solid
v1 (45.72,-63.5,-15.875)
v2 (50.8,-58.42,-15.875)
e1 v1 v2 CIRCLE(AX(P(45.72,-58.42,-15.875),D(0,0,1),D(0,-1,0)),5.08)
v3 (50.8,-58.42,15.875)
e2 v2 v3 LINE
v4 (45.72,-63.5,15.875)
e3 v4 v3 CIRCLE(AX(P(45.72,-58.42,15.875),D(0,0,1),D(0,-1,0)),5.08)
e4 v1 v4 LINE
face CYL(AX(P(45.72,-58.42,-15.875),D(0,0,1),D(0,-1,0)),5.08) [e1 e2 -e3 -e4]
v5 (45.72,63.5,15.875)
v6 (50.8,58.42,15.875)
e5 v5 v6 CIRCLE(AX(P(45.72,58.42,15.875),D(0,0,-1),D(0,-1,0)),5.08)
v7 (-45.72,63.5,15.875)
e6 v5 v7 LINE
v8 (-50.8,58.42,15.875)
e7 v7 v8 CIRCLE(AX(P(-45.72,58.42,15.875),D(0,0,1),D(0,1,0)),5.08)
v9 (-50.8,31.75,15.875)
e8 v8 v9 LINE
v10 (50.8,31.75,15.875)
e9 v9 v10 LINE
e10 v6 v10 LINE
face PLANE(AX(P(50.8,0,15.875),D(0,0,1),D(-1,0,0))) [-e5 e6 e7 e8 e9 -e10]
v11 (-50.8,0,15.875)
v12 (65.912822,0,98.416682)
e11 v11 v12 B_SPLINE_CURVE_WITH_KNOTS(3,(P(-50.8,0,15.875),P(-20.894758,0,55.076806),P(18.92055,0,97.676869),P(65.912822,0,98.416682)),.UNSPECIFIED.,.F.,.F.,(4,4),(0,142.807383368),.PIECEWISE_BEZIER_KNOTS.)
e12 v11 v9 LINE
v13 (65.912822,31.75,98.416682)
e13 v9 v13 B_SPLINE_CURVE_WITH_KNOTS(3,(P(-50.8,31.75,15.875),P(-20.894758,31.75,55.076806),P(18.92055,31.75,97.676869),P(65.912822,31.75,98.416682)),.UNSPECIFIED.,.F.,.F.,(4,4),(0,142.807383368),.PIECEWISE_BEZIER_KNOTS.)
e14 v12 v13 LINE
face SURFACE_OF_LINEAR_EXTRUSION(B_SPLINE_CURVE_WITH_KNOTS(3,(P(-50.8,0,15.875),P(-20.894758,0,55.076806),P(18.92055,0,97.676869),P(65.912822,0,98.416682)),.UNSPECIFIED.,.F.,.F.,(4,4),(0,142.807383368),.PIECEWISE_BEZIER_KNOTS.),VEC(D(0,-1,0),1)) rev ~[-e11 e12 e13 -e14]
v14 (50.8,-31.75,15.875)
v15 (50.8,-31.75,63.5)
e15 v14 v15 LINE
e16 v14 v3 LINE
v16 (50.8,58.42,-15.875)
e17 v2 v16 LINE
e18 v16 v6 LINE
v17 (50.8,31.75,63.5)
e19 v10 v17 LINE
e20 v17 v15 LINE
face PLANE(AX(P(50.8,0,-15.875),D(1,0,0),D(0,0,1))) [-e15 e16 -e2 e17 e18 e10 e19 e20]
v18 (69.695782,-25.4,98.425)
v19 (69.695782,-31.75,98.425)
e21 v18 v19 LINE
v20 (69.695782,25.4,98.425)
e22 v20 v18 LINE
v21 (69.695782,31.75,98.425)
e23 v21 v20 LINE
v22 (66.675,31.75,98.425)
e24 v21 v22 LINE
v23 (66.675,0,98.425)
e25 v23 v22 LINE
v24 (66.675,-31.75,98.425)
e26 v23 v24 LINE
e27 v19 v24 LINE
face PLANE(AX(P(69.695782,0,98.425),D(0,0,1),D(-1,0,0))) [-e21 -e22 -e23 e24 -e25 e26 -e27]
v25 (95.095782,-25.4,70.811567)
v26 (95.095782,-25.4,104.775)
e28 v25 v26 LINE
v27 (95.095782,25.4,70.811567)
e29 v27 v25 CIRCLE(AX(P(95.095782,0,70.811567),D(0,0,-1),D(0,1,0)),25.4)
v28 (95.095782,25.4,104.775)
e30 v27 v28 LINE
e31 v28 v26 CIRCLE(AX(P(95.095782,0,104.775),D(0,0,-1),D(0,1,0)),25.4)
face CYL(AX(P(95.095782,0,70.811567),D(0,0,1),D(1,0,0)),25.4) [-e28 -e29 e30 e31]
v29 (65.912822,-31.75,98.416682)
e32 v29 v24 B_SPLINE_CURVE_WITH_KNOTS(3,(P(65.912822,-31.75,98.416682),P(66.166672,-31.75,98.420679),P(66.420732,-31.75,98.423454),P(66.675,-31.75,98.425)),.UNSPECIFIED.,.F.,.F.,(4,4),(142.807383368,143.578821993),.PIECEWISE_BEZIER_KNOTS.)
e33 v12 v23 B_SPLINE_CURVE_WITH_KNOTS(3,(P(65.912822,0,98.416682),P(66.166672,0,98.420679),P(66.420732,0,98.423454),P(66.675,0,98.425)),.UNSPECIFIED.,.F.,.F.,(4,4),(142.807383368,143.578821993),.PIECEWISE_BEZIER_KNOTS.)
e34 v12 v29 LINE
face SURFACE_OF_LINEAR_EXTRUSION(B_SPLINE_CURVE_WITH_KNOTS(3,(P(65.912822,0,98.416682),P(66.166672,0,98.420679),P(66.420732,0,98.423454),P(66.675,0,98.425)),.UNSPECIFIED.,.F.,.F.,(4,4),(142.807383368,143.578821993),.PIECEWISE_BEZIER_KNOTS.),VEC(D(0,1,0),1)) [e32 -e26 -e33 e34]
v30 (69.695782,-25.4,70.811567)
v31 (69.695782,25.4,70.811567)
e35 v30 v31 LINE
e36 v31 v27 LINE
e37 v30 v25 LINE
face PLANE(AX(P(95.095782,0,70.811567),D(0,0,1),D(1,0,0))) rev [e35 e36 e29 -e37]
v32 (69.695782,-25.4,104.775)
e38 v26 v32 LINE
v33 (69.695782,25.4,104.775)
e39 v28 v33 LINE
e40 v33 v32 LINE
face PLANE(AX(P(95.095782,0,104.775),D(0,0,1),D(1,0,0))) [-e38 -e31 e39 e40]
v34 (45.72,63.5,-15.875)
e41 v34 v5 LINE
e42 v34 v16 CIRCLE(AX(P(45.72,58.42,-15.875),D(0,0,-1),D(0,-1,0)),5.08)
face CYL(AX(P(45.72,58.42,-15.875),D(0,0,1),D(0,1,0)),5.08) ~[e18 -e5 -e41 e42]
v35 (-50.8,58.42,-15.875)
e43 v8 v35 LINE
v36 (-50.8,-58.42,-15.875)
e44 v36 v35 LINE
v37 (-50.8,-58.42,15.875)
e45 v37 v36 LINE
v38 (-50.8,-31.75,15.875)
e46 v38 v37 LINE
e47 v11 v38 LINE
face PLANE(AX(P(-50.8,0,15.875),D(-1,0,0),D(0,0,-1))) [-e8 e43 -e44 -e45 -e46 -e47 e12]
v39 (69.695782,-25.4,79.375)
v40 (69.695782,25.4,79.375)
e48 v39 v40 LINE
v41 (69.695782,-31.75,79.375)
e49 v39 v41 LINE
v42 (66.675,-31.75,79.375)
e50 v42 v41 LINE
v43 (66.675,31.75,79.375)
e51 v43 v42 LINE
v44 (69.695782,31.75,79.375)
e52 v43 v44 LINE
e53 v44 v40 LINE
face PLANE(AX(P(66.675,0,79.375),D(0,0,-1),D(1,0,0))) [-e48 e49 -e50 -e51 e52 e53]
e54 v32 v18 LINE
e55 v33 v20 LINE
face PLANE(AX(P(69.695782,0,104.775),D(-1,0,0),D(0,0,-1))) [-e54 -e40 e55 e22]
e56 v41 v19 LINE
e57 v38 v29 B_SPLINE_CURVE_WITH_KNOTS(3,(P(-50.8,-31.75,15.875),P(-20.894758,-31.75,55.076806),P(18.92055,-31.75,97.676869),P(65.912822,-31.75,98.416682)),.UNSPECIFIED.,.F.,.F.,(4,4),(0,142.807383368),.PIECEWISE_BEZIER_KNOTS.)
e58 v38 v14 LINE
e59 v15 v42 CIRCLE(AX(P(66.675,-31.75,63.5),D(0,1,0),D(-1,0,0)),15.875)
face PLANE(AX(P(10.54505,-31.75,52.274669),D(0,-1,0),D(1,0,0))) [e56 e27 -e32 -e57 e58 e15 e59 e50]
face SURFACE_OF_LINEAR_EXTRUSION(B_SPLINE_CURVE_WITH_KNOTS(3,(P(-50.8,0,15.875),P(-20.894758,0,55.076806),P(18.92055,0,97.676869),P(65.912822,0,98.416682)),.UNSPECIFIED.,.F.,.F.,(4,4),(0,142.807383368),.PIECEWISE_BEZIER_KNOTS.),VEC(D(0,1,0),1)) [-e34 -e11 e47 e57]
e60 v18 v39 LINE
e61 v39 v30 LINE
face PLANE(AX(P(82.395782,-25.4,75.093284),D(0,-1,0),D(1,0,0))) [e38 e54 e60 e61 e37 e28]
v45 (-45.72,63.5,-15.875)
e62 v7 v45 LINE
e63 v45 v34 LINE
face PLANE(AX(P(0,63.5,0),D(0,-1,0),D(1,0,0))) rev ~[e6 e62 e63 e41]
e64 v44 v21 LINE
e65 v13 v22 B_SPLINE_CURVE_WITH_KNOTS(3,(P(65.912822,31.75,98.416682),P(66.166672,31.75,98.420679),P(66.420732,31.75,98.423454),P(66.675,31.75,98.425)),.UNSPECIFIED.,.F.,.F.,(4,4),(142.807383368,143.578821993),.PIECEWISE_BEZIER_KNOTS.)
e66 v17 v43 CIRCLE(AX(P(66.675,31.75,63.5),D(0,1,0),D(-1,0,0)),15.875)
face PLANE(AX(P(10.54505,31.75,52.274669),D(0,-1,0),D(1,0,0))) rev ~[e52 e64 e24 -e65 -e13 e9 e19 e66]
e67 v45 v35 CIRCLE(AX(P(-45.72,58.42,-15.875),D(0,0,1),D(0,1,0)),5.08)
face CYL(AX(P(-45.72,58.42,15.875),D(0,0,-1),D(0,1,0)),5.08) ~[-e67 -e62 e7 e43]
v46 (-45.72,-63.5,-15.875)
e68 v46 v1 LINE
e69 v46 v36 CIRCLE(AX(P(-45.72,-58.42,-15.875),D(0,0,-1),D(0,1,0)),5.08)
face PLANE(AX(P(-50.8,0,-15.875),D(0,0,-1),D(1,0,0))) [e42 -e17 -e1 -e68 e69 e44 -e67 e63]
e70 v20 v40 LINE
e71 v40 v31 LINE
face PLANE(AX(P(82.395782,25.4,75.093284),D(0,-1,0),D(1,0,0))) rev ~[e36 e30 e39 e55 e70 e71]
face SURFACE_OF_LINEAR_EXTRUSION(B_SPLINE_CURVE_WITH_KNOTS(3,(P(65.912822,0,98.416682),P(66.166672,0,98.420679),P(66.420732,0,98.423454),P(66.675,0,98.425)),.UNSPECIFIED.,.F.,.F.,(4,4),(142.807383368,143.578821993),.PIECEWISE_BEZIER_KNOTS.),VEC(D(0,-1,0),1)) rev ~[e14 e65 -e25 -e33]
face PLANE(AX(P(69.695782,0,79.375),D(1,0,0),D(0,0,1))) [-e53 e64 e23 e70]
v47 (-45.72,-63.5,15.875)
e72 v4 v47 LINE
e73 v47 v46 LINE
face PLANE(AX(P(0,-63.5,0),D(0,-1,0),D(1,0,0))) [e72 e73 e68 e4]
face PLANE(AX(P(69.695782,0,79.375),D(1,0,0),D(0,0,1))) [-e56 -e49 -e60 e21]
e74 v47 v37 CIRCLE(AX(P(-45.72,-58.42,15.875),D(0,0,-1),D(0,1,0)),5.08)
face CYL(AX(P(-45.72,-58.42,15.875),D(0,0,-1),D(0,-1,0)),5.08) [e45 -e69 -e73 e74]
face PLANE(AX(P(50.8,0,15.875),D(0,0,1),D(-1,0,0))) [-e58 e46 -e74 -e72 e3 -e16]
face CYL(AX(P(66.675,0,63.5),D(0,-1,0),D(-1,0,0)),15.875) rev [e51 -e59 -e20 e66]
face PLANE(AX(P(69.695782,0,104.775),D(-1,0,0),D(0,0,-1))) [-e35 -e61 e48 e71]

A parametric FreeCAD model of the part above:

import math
import FreeCAD as App
import Part
import Sketcher
Q = App.Units.Quantity


def edges_at(feature, points):
    """Names of the edges that pass closest to the given points."""
    edges = feature.Shape.Edges
    near = lambda p: min(range(len(edges)), key=lambda i: edges[i].distToShape(Part.Vertex(*p))[0])
    return sorted({f"Edge{near(p) + 1}" for p in points})


def add_polygon(sketch, points):
    """Adds a closed chain of lines whose ends are joined by coincident constraints."""
    first, n = sketch.GeometryCount, len(points)
    for a, b in zip(points, points[1:] + points[:1]):
        sketch.addGeometry(Part.LineSegment(App.Vector(*a, 0), App.Vector(*b, 0)), False)
    for i in range(n):
        sketch.addConstraint(Sketcher.Constraint("Coincident", first + i, 2, first + (i + 1) % n, 1))

doc = App.newDocument("Part")
body = doc.addObject("PartDesign::Body", "Body")

# Sketch on XZ plane
sketch1 = doc.addObject("Sketcher::SketchObject", "Sketch")
body.addObject(sketch1)
sketch1.AttachmentSupport = (doc.XZ_Plane, [""])
sketch1.MapMode = "FlatFace"
add_polygon(sketch1, [(51, -16), (51, 16), (-51, 16), (-51, -16)])  # lines 0-3
sketch1.addConstraint(Sketcher.Constraint("Vertical", 0))
sketch1.addConstraint(Sketcher.Constraint("Horizontal", 1))
sketch1.addConstraint(Sketcher.Constraint("Vertical", 2))
sketch1.addConstraint(Sketcher.Constraint("Horizontal", 3))
sketch1.addConstraint(Sketcher.Constraint("Symmetric", 0, 2, 2, 2, -1, 1))
sketch1.addConstraint(Sketcher.Constraint("DistanceX", 1, 2, 1, 1, Q("4 in")))
sketch1.addConstraint(Sketcher.Constraint("DistanceY", 0, 1, 0, 2, Q("1.25 in")))
pad1 = doc.addObject("PartDesign::Pad", "Pad")
body.addObject(pad1)
pad1.Profile = sketch1
pad1.Length = Q("5 in")
pad1.Midplane = True

# Sketch on XZ plane
sketch2 = doc.addObject("Sketcher::SketchObject", "Sketch001")
body.addObject(sketch2)
sketch2.AttachmentSupport = (doc.XZ_Plane, [""])
sketch2.MapMode = "FlatFace"
sketch2.addGeometry(Part.LineSegment(App.Vector(-50.8, 15.875, 0), App.Vector(50.8, 15.875, 0)), False)
sketch2.addGeometry(Part.LineSegment(App.Vector(50.8, 15.875, 0), App.Vector(50.8, 63.5, 0)), False)
sketch2.addGeometry(Part.ArcOfCircle(Part.Circle(App.Vector(66.675, 63.5, 0), App.Vector(0, 0, 1), 15.875), math.radians(90), math.radians(180)), False)
sketch2.addGeometry(Part.LineSegment(App.Vector(66.675, 79.375, 0), App.Vector(69.695782, 79.375, 0)), False)
sketch2.addGeometry(Part.LineSegment(App.Vector(69.695782, 79.375, 0), App.Vector(69.695782, 98.425, 0)), False)
sketch2.addGeometry(Part.LineSegment(App.Vector(69.695782, 98.425, 0), App.Vector(66.675, 98.425, 0)), False)
sketch2.addGeometry(Part.BSplineCurve([App.Vector(65.912822, 98.416682, 0), App.Vector(66.166672, 98.420679, 0), App.Vector(66.420732, 98.423454, 0), App.Vector(66.675, 98.425, 0)], [4, 4], [142.807383368, 143.578821993], False, 3, [1, 1, 1, 1], False), False)
sketch2.addGeometry(Part.BSplineCurve([App.Vector(-50.8, 15.875, 0), App.Vector(-20.894758, 55.076806, 0), App.Vector(18.92055, 97.676869, 0), App.Vector(65.912822, 98.416682, 0)], [4, 4], [0, 142.807383368], False, 3, [1, 1, 1, 1], False), False)
sketch2.addConstraint(Sketcher.Constraint("Block", 6))
sketch2.addConstraint(Sketcher.Constraint("Block", 7))
sketch2.addConstraint(Sketcher.Constraint("Coincident", 0, 2, 1, 1))
sketch2.addConstraint(Sketcher.Constraint("Coincident", 1, 2, 2, 2))
sketch2.addConstraint(Sketcher.Constraint("Coincident", 2, 1, 3, 1))
sketch2.addConstraint(Sketcher.Constraint("Coincident", 3, 2, 4, 1))
sketch2.addConstraint(Sketcher.Constraint("Coincident", 4, 2, 5, 1))
sketch2.addConstraint(Sketcher.Constraint("Coincident", 5, 2, 6, 2))
sketch2.addConstraint(Sketcher.Constraint("Coincident", 7, 1, 0, 1))
sketch2.addConstraint(Sketcher.Constraint("Horizontal", 0))
sketch2.addConstraint(Sketcher.Constraint("Vertical", 1))
sketch2.addConstraint(Sketcher.Constraint("Horizontal", 3))
sketch2.addConstraint(Sketcher.Constraint("Vertical", 4))
sketch2.addConstraint(Sketcher.Constraint("Horizontal", 5))
sketch2.addConstraint(Sketcher.Constraint("DistanceX", 0, 1, 0, 2, Q("4 in")))
sketch2.addConstraint(Sketcher.Constraint("Radius", 2, Q("0.625 in")))
sketch2.addConstraint(Sketcher.Constraint("DistanceY", 4, 1, 4, 2, Q("0.75 in")))
sketch2.addConstraint(Sketcher.Constraint("DistanceY", -1, 1, 1, 2, Q("2.5 in")))
sketch2.addConstraint(Sketcher.Constraint("DistanceX", -1, 1, 2, 1, Q("2.625 in")))
sketch2.addConstraint(Sketcher.Constraint("DistanceX", 3, 1, 3, 2, 3.020782))
pad2 = doc.addObject("PartDesign::Pad", "Pad001")
body.addObject(pad2)
pad2.Profile = sketch2
pad2.Length = Q("2.5 in")
pad2.Midplane = True

# Sketch on XZ plane
sketch3 = doc.addObject("Sketcher::SketchObject", "Sketch002")
body.addObject(sketch3)
sketch3.AttachmentSupport = (doc.XZ_Plane, [""])
sketch3.MapMode = "FlatFace"
add_polygon(sketch3, [(70, 71), (95, 71), (95, 105), (70, 105)])  # lines 0-3
sketch3.addConstraint(Sketcher.Constraint("Horizontal", 0))
sketch3.addConstraint(Sketcher.Constraint("Vertical", 1))
sketch3.addConstraint(Sketcher.Constraint("Horizontal", 2))
sketch3.addConstraint(Sketcher.Constraint("Vertical", 3))
sketch3.addConstraint(Sketcher.Constraint("DistanceX", 0, 1, 0, 2, Q("1 in")))
sketch3.addConstraint(Sketcher.Constraint("DistanceY", -1, 1, 1, 2, Q("4.125 in")))
sketch3.addConstraint(Sketcher.Constraint("DistanceY", 1, 1, 1, 2, 33.963433))
sketch3.addConstraint(Sketcher.Constraint("DistanceX", -1, 1, 0, 2, 95.095782))
pad3 = doc.addObject("PartDesign::Pad", "Pad002")
body.addObject(pad3)
pad3.Profile = sketch3
pad3.Length = Q("2 in")
pad3.Midplane = True

# Sketch on XZ plane
sketch4 = doc.addObject("Sketcher::SketchObject", "Sketch003")
body.addObject(sketch4)
sketch4.AttachmentSupport = (doc.XZ_Plane, [""])
sketch4.MapMode = "FlatFace"
add_polygon(sketch4, [(95, 105), (95, 71), (120, 71), (120, 105)])  # lines 0-3
sketch4.addGeometry(Part.LineSegment(App.Vector(95, 71, 0), App.Vector(95, 105, 0)), True)  # axis
sketch4.addConstraint(Sketcher.Constraint("Vertical", 0))
sketch4.addConstraint(Sketcher.Constraint("Horizontal", 1))
sketch4.addConstraint(Sketcher.Constraint("Vertical", 2))
sketch4.addConstraint(Sketcher.Constraint("Horizontal", 3))
sketch4.addConstraint(Sketcher.Constraint("Vertical", 4))
sketch4.addConstraint(Sketcher.Constraint("Coincident", 4, 1, 0, 2))
sketch4.addConstraint(Sketcher.Constraint("Horizontal", 2, 2, 4, 2))
sketch4.addConstraint(Sketcher.Constraint("DistanceX", 1, 1, 1, 2, Q("1 in")))
sketch4.addConstraint(Sketcher.Constraint("DistanceY", -1, 1, 2, 2, Q("4.125 in")))
sketch4.addConstraint(Sketcher.Constraint("DistanceY", 0, 2, 0, 1, 33.963433))
sketch4.addConstraint(Sketcher.Constraint("DistanceX", -1, 1, 0, 2, 95.095782))
revolution = doc.addObject("PartDesign::Revolution", "Revolution")
body.addObject(revolution)
revolution.Profile = sketch4
revolution.ReferenceAxis = (sketch4, ["Axis0"])
revolution.Angle = 360
doc.recompute()

fillet = doc.addObject("PartDesign::Fillet", "Fillet")
body.addObject(fillet)
fillet.Base = (revolution, edges_at(revolution, [
    (50.8, -63.5, 0),
    (-50.8, -63.5, 0),
    (-50.8, 63.5, 0),
    (50.8, 63.5, 0),
]))
fillet.Radius = Q("0.2 in")

doc.recompute()
